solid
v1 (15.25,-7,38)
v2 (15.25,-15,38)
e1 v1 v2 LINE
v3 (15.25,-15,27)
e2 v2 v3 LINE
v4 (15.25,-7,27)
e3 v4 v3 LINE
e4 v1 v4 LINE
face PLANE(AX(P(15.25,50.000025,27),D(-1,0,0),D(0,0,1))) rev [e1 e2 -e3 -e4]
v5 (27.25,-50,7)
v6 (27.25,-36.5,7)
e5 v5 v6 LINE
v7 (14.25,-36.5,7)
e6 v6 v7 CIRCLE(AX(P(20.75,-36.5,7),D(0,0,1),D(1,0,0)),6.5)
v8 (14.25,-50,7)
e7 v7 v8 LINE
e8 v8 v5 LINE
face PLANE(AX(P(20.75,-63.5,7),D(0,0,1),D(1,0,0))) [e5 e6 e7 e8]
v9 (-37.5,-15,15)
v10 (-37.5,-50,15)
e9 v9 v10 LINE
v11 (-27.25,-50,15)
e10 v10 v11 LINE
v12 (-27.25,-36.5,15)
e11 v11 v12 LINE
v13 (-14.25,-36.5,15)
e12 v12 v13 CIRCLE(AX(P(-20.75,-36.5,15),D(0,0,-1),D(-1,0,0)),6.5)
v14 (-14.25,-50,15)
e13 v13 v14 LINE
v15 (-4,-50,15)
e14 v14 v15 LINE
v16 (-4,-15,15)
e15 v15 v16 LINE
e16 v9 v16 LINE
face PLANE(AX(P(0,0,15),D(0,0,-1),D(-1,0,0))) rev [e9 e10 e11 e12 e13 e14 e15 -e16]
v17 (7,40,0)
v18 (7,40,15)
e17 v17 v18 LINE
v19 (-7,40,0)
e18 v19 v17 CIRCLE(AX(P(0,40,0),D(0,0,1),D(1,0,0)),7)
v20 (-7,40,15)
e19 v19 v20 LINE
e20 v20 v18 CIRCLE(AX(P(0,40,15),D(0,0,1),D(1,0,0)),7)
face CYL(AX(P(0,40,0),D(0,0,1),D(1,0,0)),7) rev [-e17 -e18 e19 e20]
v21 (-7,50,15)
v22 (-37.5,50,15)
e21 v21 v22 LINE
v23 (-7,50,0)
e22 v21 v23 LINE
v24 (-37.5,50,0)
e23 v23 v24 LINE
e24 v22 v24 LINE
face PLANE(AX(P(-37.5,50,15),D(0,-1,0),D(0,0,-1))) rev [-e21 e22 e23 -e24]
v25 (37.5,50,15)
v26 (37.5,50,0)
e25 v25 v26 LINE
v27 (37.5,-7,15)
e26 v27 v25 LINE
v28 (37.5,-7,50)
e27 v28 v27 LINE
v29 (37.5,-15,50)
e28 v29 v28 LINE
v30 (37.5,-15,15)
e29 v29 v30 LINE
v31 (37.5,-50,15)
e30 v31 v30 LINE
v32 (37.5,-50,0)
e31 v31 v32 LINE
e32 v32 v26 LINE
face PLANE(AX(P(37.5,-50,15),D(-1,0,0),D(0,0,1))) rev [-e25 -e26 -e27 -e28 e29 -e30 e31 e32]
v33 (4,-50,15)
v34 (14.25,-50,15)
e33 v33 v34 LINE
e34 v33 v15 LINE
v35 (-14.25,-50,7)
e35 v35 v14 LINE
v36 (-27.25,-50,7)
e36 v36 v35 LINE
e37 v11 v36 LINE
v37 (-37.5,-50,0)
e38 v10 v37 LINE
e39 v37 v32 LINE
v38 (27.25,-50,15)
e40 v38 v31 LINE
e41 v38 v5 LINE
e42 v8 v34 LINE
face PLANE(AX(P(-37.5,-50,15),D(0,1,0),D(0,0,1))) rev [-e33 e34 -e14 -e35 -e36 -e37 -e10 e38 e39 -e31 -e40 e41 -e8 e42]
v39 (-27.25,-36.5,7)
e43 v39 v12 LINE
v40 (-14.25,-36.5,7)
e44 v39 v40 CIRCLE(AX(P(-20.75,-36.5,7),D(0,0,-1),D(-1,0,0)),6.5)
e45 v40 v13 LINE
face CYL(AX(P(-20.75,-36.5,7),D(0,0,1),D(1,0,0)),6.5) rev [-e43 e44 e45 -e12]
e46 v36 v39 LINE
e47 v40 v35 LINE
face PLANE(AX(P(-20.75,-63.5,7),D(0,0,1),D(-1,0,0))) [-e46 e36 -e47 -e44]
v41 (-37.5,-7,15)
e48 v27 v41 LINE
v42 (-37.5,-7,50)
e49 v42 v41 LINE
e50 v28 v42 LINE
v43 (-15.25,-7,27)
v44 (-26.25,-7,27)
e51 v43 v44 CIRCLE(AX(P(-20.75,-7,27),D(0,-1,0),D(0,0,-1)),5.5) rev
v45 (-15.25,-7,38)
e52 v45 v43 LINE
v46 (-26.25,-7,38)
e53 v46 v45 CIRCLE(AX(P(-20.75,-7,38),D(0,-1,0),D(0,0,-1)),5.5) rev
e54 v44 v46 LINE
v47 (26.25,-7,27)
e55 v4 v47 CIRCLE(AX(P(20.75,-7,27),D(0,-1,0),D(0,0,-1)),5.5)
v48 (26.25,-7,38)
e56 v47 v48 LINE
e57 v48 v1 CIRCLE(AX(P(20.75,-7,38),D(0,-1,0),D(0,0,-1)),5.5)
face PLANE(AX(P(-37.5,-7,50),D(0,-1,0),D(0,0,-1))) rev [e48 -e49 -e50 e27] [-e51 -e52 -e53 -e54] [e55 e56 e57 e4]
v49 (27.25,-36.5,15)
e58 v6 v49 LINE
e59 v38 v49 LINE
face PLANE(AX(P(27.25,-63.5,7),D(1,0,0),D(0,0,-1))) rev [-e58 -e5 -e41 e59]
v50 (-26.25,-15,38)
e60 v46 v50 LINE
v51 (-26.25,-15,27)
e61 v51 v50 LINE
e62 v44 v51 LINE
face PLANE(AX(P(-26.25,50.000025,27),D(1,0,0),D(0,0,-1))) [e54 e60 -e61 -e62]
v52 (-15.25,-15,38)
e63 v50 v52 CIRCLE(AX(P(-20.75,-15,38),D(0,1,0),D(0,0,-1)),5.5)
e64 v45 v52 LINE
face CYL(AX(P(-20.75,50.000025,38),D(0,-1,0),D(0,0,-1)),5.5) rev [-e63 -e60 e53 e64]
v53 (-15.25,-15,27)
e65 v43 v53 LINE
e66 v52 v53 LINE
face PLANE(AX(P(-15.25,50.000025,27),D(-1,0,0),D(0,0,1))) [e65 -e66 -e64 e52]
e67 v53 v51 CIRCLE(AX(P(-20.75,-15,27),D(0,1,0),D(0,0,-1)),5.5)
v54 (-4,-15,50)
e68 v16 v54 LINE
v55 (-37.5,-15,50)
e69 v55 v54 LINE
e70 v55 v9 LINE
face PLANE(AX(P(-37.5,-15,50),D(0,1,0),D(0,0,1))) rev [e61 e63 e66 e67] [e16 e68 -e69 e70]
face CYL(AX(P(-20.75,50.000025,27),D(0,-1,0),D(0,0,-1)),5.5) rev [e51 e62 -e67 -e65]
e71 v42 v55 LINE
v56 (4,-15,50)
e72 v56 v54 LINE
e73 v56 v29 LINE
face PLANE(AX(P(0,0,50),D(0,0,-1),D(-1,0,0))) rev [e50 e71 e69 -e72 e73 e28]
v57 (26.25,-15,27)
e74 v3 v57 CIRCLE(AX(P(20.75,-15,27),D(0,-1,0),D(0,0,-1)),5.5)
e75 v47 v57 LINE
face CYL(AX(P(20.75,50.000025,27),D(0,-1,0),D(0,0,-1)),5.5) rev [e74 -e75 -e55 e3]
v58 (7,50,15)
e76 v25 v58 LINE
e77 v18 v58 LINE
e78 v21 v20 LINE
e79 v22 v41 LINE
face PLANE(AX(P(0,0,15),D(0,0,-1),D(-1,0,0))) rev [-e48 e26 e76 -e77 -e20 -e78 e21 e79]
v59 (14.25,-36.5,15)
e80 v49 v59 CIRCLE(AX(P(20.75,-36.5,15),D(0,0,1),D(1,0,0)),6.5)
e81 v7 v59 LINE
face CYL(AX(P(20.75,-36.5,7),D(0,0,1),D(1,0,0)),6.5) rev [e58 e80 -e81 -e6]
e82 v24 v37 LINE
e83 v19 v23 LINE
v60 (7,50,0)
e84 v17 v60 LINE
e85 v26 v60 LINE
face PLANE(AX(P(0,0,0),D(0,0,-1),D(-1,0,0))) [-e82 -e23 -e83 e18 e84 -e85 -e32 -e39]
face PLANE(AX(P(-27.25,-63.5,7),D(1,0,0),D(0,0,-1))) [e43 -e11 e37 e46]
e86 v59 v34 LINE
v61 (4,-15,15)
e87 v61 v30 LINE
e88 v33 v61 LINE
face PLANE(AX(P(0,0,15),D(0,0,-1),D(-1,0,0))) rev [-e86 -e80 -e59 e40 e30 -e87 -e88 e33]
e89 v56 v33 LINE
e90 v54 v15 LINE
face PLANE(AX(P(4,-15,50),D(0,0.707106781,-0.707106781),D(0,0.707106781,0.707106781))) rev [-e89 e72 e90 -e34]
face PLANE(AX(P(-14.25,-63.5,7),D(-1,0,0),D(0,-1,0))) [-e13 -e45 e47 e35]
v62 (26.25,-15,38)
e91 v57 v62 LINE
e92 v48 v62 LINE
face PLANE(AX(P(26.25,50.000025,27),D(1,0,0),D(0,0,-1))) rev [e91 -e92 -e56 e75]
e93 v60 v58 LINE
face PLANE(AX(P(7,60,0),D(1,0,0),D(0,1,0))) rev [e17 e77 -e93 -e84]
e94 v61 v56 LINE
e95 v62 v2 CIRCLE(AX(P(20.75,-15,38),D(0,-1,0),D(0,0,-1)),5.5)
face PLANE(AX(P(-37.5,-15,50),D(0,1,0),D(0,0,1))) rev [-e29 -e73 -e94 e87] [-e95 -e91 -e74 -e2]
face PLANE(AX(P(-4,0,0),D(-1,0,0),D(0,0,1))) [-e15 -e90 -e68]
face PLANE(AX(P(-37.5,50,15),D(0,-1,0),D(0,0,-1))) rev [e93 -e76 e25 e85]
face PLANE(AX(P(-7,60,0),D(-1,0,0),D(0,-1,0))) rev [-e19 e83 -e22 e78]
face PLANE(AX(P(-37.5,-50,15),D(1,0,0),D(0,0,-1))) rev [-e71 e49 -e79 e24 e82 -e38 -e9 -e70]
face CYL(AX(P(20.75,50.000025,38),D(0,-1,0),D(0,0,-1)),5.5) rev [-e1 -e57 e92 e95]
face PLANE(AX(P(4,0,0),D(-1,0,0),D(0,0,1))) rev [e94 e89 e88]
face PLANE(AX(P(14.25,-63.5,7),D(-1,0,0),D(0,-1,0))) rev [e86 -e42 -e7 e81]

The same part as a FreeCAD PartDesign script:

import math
import FreeCAD as App
import Part
import Sketcher
from FreeCAD import Vector
Q = App.Units.Quantity

doc = App.newDocument("Part")
body = doc.addObject("PartDesign::Body", "Body")

sketch1 = body.newObject("Sketcher::SketchObject", "Sketch")
sketch1.AttachmentSupport = (doc.getObject("XY_Plane"), [""])
sketch1.MapMode = "FlatFace"
sketch1.addGeometry([
    Part.LineSegment(Vector(-38, 50, 0), Vector(-38, -50, 0)),
    Part.LineSegment(Vector(-38, -50, 0), Vector(38, -50, 0)),
    Part.LineSegment(Vector(38, -50, 0), Vector(38, 50, 0)),
    Part.LineSegment(Vector(38, 50, 0), Vector(-38, 50, 0)),
], False)
sketch1.addConstraint([
    Sketcher.Constraint("Coincident", 0, 2, 1, 1),
    Sketcher.Constraint("Coincident", 1, 2, 2, 1),
    Sketcher.Constraint("Coincident", 2, 2, 3, 1),
    Sketcher.Constraint("Coincident", 3, 2, 0, 1),
    Sketcher.Constraint("Vertical", 0),
    Sketcher.Constraint("Horizontal", 1),
    Sketcher.Constraint("Vertical", 2),
    Sketcher.Constraint("Horizontal", 3),
    Sketcher.Constraint("Symmetric", 0, 2, 2, 2, -1, 1),
    Sketcher.Constraint("DistanceX", 1, 1, 1, 2, Q("75 mm")),
    Sketcher.Constraint("DistanceY", 0, 2, 0, 1, Q("100 mm")),
])
pad1 = body.newObject("PartDesign::Pad", "Pad")
pad1.Profile = sketch1
pad1.Length = 15

sketch2 = body.newObject("Sketcher::SketchObject", "Sketch001")
sketch2.AttachmentSupport = (doc.getObject("XY_Plane"), [""])
sketch2.MapMode = "FlatFace"
sketch2.AttachmentOffset = App.Placement(Vector(0, 0, 15), App.Rotation())
sketch2.addGeometry([
    Part.LineSegment(Vector(-38, -7, 0), Vector(-38, -15, 0)),
    Part.LineSegment(Vector(-38, -15, 0), Vector(38, -15, 0)),
    Part.LineSegment(Vector(38, -15, 0), Vector(38, -7, 0)),
    Part.LineSegment(Vector(38, -7, 0), Vector(-38, -7, 0)),
], False)
sketch2.addConstraint([
    Sketcher.Constraint("Coincident", 0, 2, 1, 1),
    Sketcher.Constraint("Coincident", 1, 2, 2, 1),
    Sketcher.Constraint("Coincident", 2, 2, 3, 1),
    Sketcher.Constraint("Coincident", 3, 2, 0, 1),
    Sketcher.Constraint("Vertical", 0),
    Sketcher.Constraint("Horizontal", 1),
    Sketcher.Constraint("Vertical", 2),
    Sketcher.Constraint("Horizontal", 3),
    Sketcher.Constraint("DistanceX", 1, 1, 1, 2, Q("75 mm")),
    Sketcher.Constraint("DistanceY", 0, 2, 0, 1, Q("8 mm")),
    Sketcher.Constraint("DistanceY", 0, 2, -1, 1, Q("15 mm")),
    Sketcher.Constraint("DistanceX", 0, 2, -1, 1, Q("37.5 mm")),
])
pad2 = body.newObject("PartDesign::Pad", "Pad001")
pad2.Profile = sketch2
pad2.Length = 35

sketch3 = body.newObject("Sketcher::SketchObject", "Sketch002")
sketch3.AttachmentSupport = (doc.getObject("YZ_Plane"), [""])
sketch3.MapMode = "FlatFace"
sketch3.addGeometry([
    Part.LineSegment(Vector(-15, 50, 0), Vector(-50, 15, 0)),
    Part.LineSegment(Vector(-50, 15, 0), Vector(-15, 15, 0)),
    Part.LineSegment(Vector(-15, 15, 0), Vector(-15, 50, 0)),
], False)
sketch3.addConstraint([
    Sketcher.Constraint("Coincident", 0, 2, 1, 1),
    Sketcher.Constraint("Coincident", 1, 2, 2, 1),
    Sketcher.Constraint("Coincident", 2, 2, 0, 1),
    Sketcher.Constraint("Horizontal", 1),
    Sketcher.Constraint("Vertical", 2),
    Sketcher.Constraint("Equal", 1, 2),
    Sketcher.Constraint("DistanceX", 1, 1, 1, 2, Q("35 mm")),
    Sketcher.Constraint("DistanceX", 0, 2, -1, 1, Q("50 mm")),
    Sketcher.Constraint("DistanceY", -1, 1, 0, 2, Q("15 mm")),
])
pad3 = body.newObject("PartDesign::Pad", "Pad002")
pad3.Profile = sketch3
pad3.Length = 8
pad3.Midplane = True

sketch4 = body.newObject("Sketcher::SketchObject", "Sketch003")
sketch4.AttachmentSupport = (doc.getObject("XZ_Plane"), [""])
sketch4.MapMode = "FlatFace"
sketch4.AttachmentOffset = App.Placement(Vector(0, 0, 15), App.Rotation())
sketch4.addGeometry([
    Part.LineSegment(Vector(15, 38, 0), Vector(15, 27, 0)),
    Part.ArcOfCircle(Part.Circle(Vector(21, 27, 0), Vector(0, 0, 1), 6), math.radians(180), math.radians(360)),
    Part.LineSegment(Vector(26, 27, 0), Vector(26, 38, 0)),
    Part.ArcOfCircle(Part.Circle(Vector(21, 38, 0), Vector(0, 0, 1), 6), math.radians(0), math.radians(180)),
], False)
sketch4.addConstraint([
    Sketcher.Constraint("Tangent", 0, 2, 1, 1),
    Sketcher.Constraint("Tangent", 1, 2, 2, 1),
    Sketcher.Constraint("Tangent", 2, 2, 3, 1),
    Sketcher.Constraint("Tangent", 3, 2, 0, 1),
    Sketcher.Constraint("Vertical", 0),
    Sketcher.Constraint("Vertical", 2),
    Sketcher.Constraint("Radius", 1, Q("5.5 mm")),
    Sketcher.Constraint("DistanceY", 0, 2, 0, 1, Q("11 mm")),
    Sketcher.Constraint("DistanceY", -1, 1, 1, 3, Q("27 mm")),
    Sketcher.Constraint("DistanceX", -1, 1, 1, 3, Q("20.75 mm")),
])
pocket1 = body.newObject("PartDesign::Pocket", "Pocket")
pocket1.Profile = sketch4
pocket1.Type = "ThroughAll"

sketch5 = body.newObject("Sketcher::SketchObject", "Sketch004")
sketch5.AttachmentSupport = (doc.getObject("XY_Plane"), [""])
sketch5.MapMode = "FlatFace"
sketch5.AttachmentOffset = App.Placement(Vector(0, 0, 15), App.Rotation())
sketch5.addGeometry([
    Part.LineSegment(Vector(14, -36, 0), Vector(14, -64, 0)),
    Part.ArcOfCircle(Part.Circle(Vector(21, -64, 0), Vector(0, 0, 1), 6), math.radians(180), math.radians(360)),
    Part.LineSegment(Vector(27, -64, 0), Vector(27, -36, 0)),
    Part.ArcOfCircle(Part.Circle(Vector(21, -36, 0), Vector(0, 0, 1), 6), math.radians(0), math.radians(180)),
], False)
sketch5.addConstraint([
    Sketcher.Constraint("Tangent", 0, 2, 1, 1),
    Sketcher.Constraint("Tangent", 1, 2, 2, 1),
    Sketcher.Constraint("Tangent", 2, 2, 3, 1),
    Sketcher.Constraint("Tangent", 3, 2, 0, 1),
    Sketcher.Constraint("Vertical", 0),
    Sketcher.Constraint("Vertical", 2),
    Sketcher.Constraint("Radius", 1, Q("6.5 mm")),
    Sketcher.Constraint("DistanceY", 0, 2, 0, 1, Q("27 mm")),
    Sketcher.Constraint("DistanceY", 1, 3, -1, 1, Q("63.5 mm")),
    Sketcher.Constraint("DistanceX", -1, 1, 1, 3, Q("20.75 mm")),
])
pocket2 = body.newObject("PartDesign::Pocket", "Pocket001")
pocket2.Profile = sketch5
pocket2.Length = 8

sketch6 = body.newObject("Sketcher::SketchObject", "Sketch005")
sketch6.AttachmentSupport = (doc.getObject("XY_Plane"), [""])
sketch6.MapMode = "FlatFace"
sketch6.AttachmentOffset = App.Placement(Vector(0, 0, 15), App.Rotation())
sketch6.addGeometry([
    Part.LineSegment(Vector(7, 40, 0), Vector(7, 60, 0)),
    Part.ArcOfCircle(Part.Circle(Vector(0, 60, 0), Vector(0, 0, 1), 7), math.radians(0), math.radians(180)),
    Part.LineSegment(Vector(-7, 60, 0), Vector(-7, 40, 0)),
    Part.ArcOfCircle(Part.Circle(Vector(0, 40, 0), Vector(0, 0, 1), 7), math.radians(180), math.radians(360)),
], False)
sketch6.addConstraint([
    Sketcher.Constraint("Tangent", 0, 2, 1, 1),
    Sketcher.Constraint("Tangent", 1, 2, 2, 1),
    Sketcher.Constraint("Tangent", 2, 2, 3, 1),
    Sketcher.Constraint("Tangent", 3, 2, 0, 1),
    Sketcher.Constraint("Vertical", 0),
    Sketcher.Constraint("Vertical", 2),
    Sketcher.Constraint("PointOnObject", 1, 3, -2),
    Sketcher.Constraint("Radius", 1, Q("7 mm")),
    Sketcher.Constraint("DistanceY", 0, 1, 0, 2, Q("20 mm")),
    Sketcher.Constraint("DistanceY", -1, 1, 1, 3, Q("60 mm")),
])
pocket3 = body.newObject("PartDesign::Pocket", "Pocket002")
pocket3.Profile = sketch6
pocket3.Type = "ThroughAll"
doc.recompute()

mirrored = body.newObject("PartDesign::Mirrored", "Mirrored")
mirrored.Originals = [pocket1, pocket2]
mirrored.MirrorPlane = (doc.getObject("YZ_Plane"), [""])
body.Tip = mirrored

doc.recompute()
